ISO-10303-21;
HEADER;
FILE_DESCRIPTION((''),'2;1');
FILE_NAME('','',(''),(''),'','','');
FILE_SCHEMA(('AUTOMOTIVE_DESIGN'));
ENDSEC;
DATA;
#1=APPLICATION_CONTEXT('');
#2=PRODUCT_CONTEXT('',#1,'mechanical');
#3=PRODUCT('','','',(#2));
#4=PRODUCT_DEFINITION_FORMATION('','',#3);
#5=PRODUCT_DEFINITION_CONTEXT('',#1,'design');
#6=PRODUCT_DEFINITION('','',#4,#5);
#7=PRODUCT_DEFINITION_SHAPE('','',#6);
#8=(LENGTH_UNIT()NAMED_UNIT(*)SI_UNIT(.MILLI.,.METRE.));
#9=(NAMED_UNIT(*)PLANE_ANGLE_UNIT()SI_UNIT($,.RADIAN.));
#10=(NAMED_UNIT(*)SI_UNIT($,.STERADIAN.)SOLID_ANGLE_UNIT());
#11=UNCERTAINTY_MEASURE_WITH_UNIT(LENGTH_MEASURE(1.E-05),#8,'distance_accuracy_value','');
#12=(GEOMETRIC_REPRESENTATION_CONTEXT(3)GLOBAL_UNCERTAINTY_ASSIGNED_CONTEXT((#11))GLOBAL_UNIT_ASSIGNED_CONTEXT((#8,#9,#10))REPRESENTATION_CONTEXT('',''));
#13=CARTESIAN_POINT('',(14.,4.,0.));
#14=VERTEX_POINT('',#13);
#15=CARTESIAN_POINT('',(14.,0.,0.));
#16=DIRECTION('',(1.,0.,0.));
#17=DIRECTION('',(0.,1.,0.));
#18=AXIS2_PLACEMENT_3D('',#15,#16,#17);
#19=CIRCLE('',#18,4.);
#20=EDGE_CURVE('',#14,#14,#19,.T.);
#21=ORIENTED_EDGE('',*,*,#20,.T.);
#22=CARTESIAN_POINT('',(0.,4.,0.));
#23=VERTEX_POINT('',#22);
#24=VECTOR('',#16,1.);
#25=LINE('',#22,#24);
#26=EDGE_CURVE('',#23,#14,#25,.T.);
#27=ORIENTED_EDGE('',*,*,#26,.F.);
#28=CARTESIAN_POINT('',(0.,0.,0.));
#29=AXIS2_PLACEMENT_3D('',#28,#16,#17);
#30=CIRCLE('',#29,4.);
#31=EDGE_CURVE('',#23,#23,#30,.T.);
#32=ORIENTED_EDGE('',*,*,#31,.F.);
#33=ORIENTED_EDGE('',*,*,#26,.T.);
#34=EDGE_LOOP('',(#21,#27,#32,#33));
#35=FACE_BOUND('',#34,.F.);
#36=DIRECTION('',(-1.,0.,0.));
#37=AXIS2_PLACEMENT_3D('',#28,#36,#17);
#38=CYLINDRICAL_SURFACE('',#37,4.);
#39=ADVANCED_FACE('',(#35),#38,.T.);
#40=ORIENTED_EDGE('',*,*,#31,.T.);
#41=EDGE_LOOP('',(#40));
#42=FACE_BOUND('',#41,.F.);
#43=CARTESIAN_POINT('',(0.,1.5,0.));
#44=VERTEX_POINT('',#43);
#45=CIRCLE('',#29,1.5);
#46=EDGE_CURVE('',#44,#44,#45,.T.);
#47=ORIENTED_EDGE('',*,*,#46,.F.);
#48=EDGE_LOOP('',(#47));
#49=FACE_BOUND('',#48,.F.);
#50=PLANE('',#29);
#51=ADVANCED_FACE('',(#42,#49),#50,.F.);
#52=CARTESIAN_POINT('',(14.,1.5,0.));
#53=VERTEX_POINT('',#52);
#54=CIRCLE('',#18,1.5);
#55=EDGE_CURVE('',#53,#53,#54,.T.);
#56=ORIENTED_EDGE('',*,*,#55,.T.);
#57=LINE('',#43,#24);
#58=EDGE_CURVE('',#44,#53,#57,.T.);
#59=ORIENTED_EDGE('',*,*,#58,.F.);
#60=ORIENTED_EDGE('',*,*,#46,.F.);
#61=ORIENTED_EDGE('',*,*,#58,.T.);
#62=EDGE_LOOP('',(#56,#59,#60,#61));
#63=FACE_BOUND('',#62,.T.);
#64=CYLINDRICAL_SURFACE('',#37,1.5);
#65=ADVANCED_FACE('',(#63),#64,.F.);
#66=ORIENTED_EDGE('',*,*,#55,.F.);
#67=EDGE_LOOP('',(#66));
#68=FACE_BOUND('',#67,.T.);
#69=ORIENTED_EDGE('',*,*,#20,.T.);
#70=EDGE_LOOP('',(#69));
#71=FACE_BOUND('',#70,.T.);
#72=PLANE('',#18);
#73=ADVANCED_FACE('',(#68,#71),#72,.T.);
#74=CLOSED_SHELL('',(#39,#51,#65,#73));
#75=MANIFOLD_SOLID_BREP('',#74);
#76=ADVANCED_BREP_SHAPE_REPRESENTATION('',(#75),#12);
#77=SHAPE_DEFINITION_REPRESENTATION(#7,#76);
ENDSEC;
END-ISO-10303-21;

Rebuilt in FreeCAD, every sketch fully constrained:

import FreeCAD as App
import Part
import Sketcher

V = App.Vector

doc = App.newDocument("Part")
params = doc.addObject("Spreadsheet::Sheet", "Params")
for row, (alias, value) in enumerate([
    ("sketch1_diameter", "8 mm"),
    ("sketch1_diameter2", "3 mm"),
    ("pad1_length", "14 mm"),
], start=1):
    params.set(f"A{row}", alias)
    params.set(f"B{row}", "=" + value)
    params.setAlias(f"B{row}", alias)

body = doc.addObject("PartDesign::Body", "Body")

sketch1 = doc.addObject("Sketcher::SketchObject", "Sketch")
body.addObject(sketch1)
sketch1.AttachmentSupport = (doc.YZ_Plane, [""])
sketch1.MapMode = "FlatFace"
sketch1.addGeometry(Part.Circle(V(0, 0, 0), V(0, 0, 1), 4), False)
sketch1.addGeometry(Part.Circle(V(0, 0, 0), V(0, 0, 1), 1.5), False)
sketch1.addConstraint(Sketcher.Constraint("Coincident", 0, 3, -1, 1))
sketch1.addConstraint(Sketcher.Constraint("Coincident", 1, 3, -1, 1))
sketch1.addConstraint(Sketcher.Constraint("Diameter", 0, 8.0))
sketch1.addConstraint(Sketcher.Constraint("Diameter", 1, 3.0))
sketch1.setExpression("Constraints[2]", "Params.sketch1_diameter")
sketch1.setExpression("Constraints[3]", "Params.sketch1_diameter2")
pad1 = doc.addObject("PartDesign::Pad", "Pad")
body.addObject(pad1)
pad1.Profile = sketch1
pad1.setExpression("Length", "Params.pad1_length")

doc.recompute()
